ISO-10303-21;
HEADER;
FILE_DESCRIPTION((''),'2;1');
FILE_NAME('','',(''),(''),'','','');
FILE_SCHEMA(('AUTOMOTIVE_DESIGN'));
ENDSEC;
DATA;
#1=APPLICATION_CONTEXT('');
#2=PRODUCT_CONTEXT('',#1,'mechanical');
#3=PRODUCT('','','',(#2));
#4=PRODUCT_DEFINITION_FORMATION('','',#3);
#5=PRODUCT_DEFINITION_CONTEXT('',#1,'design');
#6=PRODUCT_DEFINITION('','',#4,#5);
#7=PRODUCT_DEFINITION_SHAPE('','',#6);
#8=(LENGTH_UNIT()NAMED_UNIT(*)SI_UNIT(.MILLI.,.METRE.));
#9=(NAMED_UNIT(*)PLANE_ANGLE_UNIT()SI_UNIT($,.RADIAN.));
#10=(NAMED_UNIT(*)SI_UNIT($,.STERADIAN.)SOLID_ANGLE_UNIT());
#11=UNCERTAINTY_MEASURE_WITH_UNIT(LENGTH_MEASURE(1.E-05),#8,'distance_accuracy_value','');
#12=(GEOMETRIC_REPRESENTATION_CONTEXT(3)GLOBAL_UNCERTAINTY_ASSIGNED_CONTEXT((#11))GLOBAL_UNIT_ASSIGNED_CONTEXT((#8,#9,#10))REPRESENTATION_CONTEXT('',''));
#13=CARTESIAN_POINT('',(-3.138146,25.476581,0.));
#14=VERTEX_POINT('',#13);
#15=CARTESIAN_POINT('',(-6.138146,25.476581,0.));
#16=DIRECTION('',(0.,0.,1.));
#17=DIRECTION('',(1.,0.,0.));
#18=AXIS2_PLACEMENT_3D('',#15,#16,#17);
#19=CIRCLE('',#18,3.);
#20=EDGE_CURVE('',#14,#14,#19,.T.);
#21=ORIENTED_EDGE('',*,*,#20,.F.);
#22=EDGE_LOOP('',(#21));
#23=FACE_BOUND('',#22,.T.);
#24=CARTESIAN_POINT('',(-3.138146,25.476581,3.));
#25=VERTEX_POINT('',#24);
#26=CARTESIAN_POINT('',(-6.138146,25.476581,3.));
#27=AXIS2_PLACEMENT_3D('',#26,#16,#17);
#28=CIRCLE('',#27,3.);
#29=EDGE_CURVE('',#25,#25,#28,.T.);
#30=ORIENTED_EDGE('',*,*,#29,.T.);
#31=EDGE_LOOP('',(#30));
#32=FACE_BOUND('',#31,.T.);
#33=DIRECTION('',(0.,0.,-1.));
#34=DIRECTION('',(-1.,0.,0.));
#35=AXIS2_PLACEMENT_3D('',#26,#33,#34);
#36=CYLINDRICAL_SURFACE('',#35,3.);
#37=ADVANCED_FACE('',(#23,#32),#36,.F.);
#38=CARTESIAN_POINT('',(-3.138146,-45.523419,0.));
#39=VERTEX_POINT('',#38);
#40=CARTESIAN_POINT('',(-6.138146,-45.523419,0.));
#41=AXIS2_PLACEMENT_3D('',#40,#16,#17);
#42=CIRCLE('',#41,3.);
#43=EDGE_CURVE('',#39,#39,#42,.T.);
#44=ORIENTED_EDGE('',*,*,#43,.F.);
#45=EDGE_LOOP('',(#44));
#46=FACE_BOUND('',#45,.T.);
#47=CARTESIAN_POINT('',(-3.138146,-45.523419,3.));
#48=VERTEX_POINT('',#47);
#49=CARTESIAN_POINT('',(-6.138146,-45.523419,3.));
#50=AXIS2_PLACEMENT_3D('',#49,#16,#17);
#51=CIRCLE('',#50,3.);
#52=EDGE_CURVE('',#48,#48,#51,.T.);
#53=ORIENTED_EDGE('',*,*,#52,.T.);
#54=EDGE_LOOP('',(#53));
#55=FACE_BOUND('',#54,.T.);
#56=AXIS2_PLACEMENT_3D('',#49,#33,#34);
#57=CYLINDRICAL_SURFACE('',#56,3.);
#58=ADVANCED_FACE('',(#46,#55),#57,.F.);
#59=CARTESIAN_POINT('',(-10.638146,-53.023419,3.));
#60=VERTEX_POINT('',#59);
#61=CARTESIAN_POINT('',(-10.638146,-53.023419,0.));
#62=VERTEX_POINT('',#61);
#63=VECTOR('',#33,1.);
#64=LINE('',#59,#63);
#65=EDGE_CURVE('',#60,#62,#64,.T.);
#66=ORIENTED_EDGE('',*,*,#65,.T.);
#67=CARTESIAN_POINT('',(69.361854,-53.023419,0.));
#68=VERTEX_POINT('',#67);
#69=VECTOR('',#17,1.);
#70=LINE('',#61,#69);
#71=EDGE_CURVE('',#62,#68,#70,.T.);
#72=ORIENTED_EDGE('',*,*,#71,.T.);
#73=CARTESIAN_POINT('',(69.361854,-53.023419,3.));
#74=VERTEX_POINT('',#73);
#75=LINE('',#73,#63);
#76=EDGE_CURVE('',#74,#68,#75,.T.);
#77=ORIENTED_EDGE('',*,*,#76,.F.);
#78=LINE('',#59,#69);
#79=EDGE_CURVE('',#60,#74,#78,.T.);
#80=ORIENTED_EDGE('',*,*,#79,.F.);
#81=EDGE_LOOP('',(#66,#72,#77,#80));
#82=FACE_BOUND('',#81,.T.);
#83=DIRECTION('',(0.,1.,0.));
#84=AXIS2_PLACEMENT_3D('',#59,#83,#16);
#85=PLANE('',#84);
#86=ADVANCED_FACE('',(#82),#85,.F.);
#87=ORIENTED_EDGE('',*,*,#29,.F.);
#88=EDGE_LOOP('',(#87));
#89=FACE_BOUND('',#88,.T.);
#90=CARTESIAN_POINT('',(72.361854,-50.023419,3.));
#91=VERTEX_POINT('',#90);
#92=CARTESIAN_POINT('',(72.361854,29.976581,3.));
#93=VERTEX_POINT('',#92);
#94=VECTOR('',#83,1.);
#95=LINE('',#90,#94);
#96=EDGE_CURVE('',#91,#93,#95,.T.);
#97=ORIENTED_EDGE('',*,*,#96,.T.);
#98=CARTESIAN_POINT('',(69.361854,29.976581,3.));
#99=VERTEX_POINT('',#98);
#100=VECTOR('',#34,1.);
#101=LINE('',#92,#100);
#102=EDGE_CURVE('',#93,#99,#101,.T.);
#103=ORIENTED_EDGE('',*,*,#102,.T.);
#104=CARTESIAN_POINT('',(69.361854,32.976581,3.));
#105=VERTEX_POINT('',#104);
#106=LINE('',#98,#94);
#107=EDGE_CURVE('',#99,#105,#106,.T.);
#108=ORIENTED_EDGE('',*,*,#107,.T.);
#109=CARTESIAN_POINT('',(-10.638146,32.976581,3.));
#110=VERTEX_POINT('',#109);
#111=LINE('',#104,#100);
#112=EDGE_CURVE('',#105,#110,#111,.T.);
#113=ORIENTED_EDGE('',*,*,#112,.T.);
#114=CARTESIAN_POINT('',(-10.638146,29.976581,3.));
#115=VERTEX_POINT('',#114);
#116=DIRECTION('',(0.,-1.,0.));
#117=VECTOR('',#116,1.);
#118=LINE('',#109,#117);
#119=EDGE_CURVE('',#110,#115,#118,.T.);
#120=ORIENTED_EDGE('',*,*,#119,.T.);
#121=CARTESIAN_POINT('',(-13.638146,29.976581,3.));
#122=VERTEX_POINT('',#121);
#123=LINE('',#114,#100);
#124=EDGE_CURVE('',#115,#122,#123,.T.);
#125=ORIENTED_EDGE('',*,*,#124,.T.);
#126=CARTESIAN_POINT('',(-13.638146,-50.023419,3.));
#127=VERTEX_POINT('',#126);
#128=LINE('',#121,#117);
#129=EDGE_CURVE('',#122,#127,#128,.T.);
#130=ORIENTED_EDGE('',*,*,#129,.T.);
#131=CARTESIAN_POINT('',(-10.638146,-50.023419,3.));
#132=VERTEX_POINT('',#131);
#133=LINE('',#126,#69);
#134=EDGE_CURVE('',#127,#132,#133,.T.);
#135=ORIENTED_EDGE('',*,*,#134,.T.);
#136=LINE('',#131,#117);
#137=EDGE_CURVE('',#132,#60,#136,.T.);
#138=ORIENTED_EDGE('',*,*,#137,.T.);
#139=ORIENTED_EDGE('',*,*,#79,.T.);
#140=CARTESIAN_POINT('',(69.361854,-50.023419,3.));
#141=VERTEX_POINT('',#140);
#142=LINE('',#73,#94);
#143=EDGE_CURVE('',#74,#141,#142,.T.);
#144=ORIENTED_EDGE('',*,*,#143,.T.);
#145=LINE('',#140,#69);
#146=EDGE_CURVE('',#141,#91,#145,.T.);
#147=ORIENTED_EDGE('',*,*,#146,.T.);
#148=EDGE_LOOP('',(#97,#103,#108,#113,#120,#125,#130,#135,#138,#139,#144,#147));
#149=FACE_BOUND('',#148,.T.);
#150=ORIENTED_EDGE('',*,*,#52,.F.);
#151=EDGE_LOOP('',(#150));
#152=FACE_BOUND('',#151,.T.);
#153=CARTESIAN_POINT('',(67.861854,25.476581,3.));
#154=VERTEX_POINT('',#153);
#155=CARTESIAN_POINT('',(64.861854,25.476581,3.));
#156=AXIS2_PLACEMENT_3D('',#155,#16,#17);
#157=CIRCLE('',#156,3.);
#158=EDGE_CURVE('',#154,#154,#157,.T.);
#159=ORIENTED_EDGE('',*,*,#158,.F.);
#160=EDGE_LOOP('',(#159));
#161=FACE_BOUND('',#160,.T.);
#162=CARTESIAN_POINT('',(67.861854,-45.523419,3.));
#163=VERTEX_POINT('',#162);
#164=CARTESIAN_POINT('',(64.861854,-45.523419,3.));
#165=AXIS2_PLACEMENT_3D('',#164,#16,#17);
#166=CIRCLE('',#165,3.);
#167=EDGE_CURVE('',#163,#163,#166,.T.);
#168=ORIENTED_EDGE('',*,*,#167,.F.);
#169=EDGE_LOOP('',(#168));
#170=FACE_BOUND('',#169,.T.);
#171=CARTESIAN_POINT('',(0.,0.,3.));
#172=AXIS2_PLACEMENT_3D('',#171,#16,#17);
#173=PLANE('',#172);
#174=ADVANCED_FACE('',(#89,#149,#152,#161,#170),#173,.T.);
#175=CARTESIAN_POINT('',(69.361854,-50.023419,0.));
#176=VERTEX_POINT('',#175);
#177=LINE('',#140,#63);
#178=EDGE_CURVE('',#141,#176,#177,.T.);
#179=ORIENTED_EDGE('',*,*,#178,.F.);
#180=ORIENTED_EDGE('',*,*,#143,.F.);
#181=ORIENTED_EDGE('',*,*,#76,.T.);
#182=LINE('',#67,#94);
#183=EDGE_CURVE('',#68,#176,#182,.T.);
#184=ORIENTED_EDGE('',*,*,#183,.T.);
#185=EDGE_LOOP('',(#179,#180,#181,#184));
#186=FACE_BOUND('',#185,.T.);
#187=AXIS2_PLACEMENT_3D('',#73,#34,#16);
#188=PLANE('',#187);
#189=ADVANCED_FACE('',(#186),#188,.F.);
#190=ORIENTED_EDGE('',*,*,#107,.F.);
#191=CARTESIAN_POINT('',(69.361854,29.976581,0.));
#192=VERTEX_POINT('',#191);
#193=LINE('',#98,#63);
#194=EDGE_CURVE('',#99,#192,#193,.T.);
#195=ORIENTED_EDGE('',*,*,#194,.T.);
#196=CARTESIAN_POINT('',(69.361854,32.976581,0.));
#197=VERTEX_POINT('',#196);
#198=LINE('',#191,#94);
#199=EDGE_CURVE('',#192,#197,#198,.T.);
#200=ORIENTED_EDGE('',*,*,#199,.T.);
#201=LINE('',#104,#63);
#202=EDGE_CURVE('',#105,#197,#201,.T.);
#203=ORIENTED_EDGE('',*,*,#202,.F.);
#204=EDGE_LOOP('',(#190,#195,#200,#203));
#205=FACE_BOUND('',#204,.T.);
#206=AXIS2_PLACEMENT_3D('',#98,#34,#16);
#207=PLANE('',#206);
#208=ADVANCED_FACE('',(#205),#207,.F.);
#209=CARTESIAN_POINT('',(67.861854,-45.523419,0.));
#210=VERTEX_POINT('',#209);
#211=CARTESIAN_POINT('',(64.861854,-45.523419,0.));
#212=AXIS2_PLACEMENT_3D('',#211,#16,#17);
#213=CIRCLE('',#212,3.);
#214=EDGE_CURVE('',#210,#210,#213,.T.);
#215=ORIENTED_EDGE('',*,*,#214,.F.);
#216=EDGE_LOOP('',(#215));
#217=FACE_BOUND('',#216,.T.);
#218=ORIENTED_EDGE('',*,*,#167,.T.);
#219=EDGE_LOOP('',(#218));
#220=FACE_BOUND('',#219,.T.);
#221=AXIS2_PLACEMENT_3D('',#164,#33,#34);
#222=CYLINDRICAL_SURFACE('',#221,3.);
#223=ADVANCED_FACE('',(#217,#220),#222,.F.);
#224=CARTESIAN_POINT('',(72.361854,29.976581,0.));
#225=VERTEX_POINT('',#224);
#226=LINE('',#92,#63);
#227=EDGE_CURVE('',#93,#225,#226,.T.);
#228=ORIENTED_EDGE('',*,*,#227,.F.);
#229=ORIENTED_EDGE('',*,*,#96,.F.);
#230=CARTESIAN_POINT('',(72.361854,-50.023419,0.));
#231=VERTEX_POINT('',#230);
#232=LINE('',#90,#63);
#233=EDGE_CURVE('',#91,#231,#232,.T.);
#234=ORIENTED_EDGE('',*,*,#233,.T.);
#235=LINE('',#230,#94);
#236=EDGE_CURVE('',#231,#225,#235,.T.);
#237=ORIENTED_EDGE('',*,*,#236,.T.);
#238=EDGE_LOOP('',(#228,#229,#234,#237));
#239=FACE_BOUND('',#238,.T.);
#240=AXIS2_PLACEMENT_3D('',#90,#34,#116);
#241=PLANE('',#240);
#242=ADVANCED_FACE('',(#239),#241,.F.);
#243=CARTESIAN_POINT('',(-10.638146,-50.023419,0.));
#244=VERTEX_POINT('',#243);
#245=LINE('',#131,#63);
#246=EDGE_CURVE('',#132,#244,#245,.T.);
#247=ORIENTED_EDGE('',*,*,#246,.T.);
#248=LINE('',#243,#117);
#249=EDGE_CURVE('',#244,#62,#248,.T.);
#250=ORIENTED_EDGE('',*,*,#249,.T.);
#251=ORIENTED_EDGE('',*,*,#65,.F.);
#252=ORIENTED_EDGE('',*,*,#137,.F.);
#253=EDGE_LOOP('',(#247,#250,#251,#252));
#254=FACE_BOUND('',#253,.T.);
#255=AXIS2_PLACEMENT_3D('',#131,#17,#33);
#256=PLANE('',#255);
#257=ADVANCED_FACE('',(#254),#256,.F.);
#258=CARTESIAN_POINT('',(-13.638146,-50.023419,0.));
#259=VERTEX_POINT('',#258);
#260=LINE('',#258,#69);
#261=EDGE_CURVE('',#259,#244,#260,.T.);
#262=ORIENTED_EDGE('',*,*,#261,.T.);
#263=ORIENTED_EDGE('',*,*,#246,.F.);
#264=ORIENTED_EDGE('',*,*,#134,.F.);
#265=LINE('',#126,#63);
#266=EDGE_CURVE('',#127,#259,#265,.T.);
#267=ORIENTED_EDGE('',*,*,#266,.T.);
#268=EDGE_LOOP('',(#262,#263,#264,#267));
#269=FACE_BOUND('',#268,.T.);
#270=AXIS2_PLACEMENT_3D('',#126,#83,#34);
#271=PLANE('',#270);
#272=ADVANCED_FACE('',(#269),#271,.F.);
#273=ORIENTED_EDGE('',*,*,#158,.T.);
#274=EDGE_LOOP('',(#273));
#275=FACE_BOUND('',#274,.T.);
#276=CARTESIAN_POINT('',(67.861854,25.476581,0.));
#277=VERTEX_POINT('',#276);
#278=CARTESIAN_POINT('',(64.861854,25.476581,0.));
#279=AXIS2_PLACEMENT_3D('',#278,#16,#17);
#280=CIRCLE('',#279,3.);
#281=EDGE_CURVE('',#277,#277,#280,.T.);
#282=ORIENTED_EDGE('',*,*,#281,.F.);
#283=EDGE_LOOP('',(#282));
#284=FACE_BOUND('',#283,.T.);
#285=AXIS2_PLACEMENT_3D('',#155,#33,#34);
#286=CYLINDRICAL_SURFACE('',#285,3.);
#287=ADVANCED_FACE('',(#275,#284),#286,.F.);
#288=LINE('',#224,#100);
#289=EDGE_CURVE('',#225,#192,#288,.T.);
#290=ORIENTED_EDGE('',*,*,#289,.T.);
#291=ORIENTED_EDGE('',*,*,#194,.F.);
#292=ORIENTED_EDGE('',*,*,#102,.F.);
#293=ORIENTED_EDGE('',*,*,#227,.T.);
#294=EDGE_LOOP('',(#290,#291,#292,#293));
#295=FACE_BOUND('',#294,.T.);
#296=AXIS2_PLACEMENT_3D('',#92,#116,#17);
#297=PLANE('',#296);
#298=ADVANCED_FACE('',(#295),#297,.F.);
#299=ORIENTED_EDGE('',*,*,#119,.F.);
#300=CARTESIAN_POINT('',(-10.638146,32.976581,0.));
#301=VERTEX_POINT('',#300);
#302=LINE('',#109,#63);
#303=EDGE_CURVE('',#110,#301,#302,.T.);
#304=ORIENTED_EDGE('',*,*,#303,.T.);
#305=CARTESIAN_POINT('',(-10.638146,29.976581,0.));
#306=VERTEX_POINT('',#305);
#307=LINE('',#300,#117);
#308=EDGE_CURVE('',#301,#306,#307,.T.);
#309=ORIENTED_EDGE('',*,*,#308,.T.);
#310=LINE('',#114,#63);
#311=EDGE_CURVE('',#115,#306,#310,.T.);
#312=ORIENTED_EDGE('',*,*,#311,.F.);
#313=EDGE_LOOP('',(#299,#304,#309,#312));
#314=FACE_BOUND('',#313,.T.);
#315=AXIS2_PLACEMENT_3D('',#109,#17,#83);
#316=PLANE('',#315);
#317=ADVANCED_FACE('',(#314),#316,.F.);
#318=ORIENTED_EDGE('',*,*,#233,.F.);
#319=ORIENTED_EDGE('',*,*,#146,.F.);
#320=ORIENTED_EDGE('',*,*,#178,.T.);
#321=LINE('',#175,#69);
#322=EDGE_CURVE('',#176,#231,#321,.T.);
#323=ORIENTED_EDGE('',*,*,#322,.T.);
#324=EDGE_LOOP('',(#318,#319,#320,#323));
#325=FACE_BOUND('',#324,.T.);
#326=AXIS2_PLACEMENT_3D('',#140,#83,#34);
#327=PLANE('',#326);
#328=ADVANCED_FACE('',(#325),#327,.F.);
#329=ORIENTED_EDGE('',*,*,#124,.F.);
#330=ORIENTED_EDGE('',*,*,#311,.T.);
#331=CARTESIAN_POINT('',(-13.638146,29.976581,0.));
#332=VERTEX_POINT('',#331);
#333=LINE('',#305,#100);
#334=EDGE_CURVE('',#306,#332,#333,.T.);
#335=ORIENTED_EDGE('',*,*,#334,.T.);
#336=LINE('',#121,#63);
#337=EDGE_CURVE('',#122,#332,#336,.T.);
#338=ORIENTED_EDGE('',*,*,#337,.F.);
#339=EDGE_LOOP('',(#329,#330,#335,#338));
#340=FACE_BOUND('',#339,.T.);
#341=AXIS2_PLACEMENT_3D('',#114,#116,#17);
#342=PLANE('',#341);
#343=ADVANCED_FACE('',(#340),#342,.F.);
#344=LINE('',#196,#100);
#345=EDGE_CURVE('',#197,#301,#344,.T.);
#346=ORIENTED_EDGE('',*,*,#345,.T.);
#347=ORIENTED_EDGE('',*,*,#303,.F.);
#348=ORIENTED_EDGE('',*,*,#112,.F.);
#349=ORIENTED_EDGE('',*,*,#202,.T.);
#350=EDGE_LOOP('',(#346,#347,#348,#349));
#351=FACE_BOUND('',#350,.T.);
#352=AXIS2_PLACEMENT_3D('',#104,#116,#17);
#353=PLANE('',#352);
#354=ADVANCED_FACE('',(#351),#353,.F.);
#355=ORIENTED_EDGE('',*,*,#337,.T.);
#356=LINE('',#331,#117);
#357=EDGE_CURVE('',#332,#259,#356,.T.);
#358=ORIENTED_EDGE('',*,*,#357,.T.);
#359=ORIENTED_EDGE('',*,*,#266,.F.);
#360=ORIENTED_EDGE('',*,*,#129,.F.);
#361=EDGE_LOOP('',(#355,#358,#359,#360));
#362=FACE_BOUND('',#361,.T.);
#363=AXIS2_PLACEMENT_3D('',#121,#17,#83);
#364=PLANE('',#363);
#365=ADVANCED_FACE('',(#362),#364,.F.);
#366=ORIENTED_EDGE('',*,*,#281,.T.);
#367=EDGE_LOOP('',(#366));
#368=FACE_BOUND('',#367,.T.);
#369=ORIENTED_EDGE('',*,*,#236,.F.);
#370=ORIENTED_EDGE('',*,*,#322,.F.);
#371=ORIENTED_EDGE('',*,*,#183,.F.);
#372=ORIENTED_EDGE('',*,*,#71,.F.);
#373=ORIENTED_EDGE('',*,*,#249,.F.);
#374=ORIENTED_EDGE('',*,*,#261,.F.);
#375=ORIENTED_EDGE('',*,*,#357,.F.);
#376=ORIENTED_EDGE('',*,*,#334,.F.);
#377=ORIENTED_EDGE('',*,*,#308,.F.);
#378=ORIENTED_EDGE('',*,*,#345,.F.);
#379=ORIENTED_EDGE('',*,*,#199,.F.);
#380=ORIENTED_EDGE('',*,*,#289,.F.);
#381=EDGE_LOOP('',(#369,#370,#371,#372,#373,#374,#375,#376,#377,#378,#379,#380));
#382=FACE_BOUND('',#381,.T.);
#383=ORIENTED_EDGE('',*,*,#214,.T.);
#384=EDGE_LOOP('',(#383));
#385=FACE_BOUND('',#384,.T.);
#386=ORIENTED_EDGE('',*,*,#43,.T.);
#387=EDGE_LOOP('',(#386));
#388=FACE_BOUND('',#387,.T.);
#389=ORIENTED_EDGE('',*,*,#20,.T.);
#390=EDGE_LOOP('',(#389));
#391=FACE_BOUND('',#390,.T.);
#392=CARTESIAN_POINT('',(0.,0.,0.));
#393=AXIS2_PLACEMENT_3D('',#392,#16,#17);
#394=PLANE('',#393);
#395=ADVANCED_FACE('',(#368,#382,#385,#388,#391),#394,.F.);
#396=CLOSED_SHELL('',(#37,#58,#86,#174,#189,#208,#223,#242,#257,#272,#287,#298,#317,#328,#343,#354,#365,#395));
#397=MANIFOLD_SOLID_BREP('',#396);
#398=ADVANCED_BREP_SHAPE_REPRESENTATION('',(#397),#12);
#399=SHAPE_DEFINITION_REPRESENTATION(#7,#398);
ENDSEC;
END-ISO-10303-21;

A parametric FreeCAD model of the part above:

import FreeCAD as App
import Part
import Sketcher
from FreeCAD import Vector
Q = App.Units.Quantity

doc = App.newDocument("Part")
body = doc.addObject("PartDesign::Body", "Body")

# Sketch on XY plane
sketch1 = body.newObject("Sketcher::SketchObject", "Sketch")
sketch1.AttachmentSupport = (doc.getObject("XY_Plane"), [""])
sketch1.MapMode = "FlatFace"
sketch1.addGeometry(Part.LineSegment(Vector(-10.638146, 32.976581, 0), Vector(-10.638146, 29.976581, 0)), False)
sketch1.addGeometry(Part.LineSegment(Vector(-10.638146, 29.976581, 0), Vector(-13.638146, 29.976581, 0)), False)
sketch1.addGeometry(Part.LineSegment(Vector(-13.638146, 29.976581, 0), Vector(-13.638146, -50.023419, 0)), False)
sketch1.addGeometry(Part.LineSegment(Vector(-13.638146, -50.023419, 0), Vector(-10.638146, -50.023419, 0)), False)
sketch1.addGeometry(Part.LineSegment(Vector(-10.638146, -50.023419, 0), Vector(-10.638146, -53.023419, 0)), False)
sketch1.addGeometry(Part.LineSegment(Vector(-10.638146, -53.023419, 0), Vector(69.361854, -53.023419, 0)), False)
sketch1.addGeometry(Part.LineSegment(Vector(69.361854, -53.023419, 0), Vector(69.361854, -50.023419, 0)), False)
sketch1.addGeometry(Part.LineSegment(Vector(69.361854, -50.023419, 0), Vector(72.361854, -50.023419, 0)), False)
sketch1.addGeometry(Part.LineSegment(Vector(72.361854, -50.023419, 0), Vector(72.361854, 29.976581, 0)), False)
sketch1.addGeometry(Part.LineSegment(Vector(72.361854, 29.976581, 0), Vector(69.361854, 29.976581, 0)), False)
sketch1.addGeometry(Part.LineSegment(Vector(69.361854, 29.976581, 0), Vector(69.361854, 32.976581, 0)), False)
sketch1.addGeometry(Part.LineSegment(Vector(69.361854, 32.976581, 0), Vector(-10.638146, 32.976581, 0)), False)
sketch1.addGeometry(Part.Circle(Vector(-6.138146, -45.523419, 0), Vector(0, 0, 1), 3), False)
sketch1.addGeometry(Part.Circle(Vector(64.861854, -45.523419, 0), Vector(0, 0, 1), 3), False)
sketch1.addGeometry(Part.Circle(Vector(-6.138146, 25.476581, 0), Vector(0, 0, 1), 3), False)
sketch1.addGeometry(Part.Circle(Vector(64.861854, 25.476581, 0), Vector(0, 0, 1), 3), False)
sketch1.addConstraint(Sketcher.Constraint("Coincident", 0, 2, 1, 1))
sketch1.addConstraint(Sketcher.Constraint("Coincident", 1, 2, 2, 1))
sketch1.addConstraint(Sketcher.Constraint("Coincident", 2, 2, 3, 1))
sketch1.addConstraint(Sketcher.Constraint("Coincident", 3, 2, 4, 1))
sketch1.addConstraint(Sketcher.Constraint("Coincident", 4, 2, 5, 1))
sketch1.addConstraint(Sketcher.Constraint("Coincident", 5, 2, 6, 1))
sketch1.addConstraint(Sketcher.Constraint("Coincident", 6, 2, 7, 1))
sketch1.addConstraint(Sketcher.Constraint("Coincident", 7, 2, 8, 1))
sketch1.addConstraint(Sketcher.Constraint("Coincident", 8, 2, 9, 1))
sketch1.addConstraint(Sketcher.Constraint("Coincident", 9, 2, 10, 1))
sketch1.addConstraint(Sketcher.Constraint("Coincident", 10, 2, 11, 1))
sketch1.addConstraint(Sketcher.Constraint("Coincident", 11, 2, 0, 1))
sketch1.addConstraint(Sketcher.Constraint("Vertical", 0))
sketch1.addConstraint(Sketcher.Constraint("Horizontal", 1))
sketch1.addConstraint(Sketcher.Constraint("Vertical", 2))
sketch1.addConstraint(Sketcher.Constraint("Horizontal", 3))
sketch1.addConstraint(Sketcher.Constraint("Vertical", 4))
sketch1.addConstraint(Sketcher.Constraint("Horizontal", 5))
sketch1.addConstraint(Sketcher.Constraint("Vertical", 6))
sketch1.addConstraint(Sketcher.Constraint("Horizontal", 7))
sketch1.addConstraint(Sketcher.Constraint("Vertical", 8))
sketch1.addConstraint(Sketcher.Constraint("Horizontal", 9))
sketch1.addConstraint(Sketcher.Constraint("Vertical", 10))
sketch1.addConstraint(Sketcher.Constraint("Horizontal", 11))
sketch1.addConstraint(Sketcher.Constraint("Equal", 12, 13))
sketch1.addConstraint(Sketcher.Constraint("Equal", 13, 14))
sketch1.addConstraint(Sketcher.Constraint("Equal", 14, 15))
sketch1.addConstraint(Sketcher.Constraint("Horizontal", 12, 3, 13, 3))
sketch1.addConstraint(Sketcher.Constraint("Horizontal", 14, 3, 15, 3))
sketch1.addConstraint(Sketcher.Constraint("Horizontal", 3, 2, 6, 2))
sketch1.addConstraint(Sketcher.Constraint("Horizontal", 1, 2, 8, 2))
sketch1.addConstraint(Sketcher.Constraint("Vertical", 12, 3, 14, 3))
sketch1.addConstraint(Sketcher.Constraint("Vertical", 13, 3, 15, 3))
sketch1.addConstraint(Sketcher.Constraint("Vertical", 0, 2, 3, 2))
sketch1.addConstraint(Sketcher.Constraint("Vertical", 6, 2, 9, 2))
sketch1.addConstraint(Sketcher.Constraint("Equal", 3, 7))
sketch1.addConstraint(Sketcher.Constraint("Equal", 9, 0))
sketch1.addConstraint(Sketcher.Constraint("Equal", 11, 2))
sketch1.addConstraint(Sketcher.Constraint("Equal", 0, 4))
sketch1.addConstraint(Sketcher.Constraint("Diameter", 12, Q("6 mm")))
sketch1.addConstraint(Sketcher.Constraint("DistanceX", 1, 2, 1, 1, Q("3 mm")))
sketch1.addConstraint(Sketcher.Constraint("DistanceX", 5, 1, 5, 2, Q("80 mm")))
sketch1.addConstraint(Sketcher.Constraint("DistanceX", 12, 3, 13, 3, Q("71 mm")))
sketch1.addConstraint(Sketcher.Constraint("DistanceY", 12, 3, 14, 3, Q("71 mm")))
sketch1.addConstraint(Sketcher.Constraint("DistanceX", 0, 2, 14, 3, Q("4.5 mm")))
sketch1.addConstraint(Sketcher.Constraint("DistanceY", 14, 3, 0, 2, Q("4.5 mm")))
sketch1.addConstraint(Sketcher.Constraint("DistanceY", 12, 3, -1, 1, Q("45.523419 mm")))
sketch1.addConstraint(Sketcher.Constraint("DistanceX", 12, 3, -1, 1, Q("6.138146 mm")))
pad1 = body.newObject("PartDesign::Pad", "Pad")
pad1.Profile = sketch1
pad1.Length = 3

doc.recompute()
